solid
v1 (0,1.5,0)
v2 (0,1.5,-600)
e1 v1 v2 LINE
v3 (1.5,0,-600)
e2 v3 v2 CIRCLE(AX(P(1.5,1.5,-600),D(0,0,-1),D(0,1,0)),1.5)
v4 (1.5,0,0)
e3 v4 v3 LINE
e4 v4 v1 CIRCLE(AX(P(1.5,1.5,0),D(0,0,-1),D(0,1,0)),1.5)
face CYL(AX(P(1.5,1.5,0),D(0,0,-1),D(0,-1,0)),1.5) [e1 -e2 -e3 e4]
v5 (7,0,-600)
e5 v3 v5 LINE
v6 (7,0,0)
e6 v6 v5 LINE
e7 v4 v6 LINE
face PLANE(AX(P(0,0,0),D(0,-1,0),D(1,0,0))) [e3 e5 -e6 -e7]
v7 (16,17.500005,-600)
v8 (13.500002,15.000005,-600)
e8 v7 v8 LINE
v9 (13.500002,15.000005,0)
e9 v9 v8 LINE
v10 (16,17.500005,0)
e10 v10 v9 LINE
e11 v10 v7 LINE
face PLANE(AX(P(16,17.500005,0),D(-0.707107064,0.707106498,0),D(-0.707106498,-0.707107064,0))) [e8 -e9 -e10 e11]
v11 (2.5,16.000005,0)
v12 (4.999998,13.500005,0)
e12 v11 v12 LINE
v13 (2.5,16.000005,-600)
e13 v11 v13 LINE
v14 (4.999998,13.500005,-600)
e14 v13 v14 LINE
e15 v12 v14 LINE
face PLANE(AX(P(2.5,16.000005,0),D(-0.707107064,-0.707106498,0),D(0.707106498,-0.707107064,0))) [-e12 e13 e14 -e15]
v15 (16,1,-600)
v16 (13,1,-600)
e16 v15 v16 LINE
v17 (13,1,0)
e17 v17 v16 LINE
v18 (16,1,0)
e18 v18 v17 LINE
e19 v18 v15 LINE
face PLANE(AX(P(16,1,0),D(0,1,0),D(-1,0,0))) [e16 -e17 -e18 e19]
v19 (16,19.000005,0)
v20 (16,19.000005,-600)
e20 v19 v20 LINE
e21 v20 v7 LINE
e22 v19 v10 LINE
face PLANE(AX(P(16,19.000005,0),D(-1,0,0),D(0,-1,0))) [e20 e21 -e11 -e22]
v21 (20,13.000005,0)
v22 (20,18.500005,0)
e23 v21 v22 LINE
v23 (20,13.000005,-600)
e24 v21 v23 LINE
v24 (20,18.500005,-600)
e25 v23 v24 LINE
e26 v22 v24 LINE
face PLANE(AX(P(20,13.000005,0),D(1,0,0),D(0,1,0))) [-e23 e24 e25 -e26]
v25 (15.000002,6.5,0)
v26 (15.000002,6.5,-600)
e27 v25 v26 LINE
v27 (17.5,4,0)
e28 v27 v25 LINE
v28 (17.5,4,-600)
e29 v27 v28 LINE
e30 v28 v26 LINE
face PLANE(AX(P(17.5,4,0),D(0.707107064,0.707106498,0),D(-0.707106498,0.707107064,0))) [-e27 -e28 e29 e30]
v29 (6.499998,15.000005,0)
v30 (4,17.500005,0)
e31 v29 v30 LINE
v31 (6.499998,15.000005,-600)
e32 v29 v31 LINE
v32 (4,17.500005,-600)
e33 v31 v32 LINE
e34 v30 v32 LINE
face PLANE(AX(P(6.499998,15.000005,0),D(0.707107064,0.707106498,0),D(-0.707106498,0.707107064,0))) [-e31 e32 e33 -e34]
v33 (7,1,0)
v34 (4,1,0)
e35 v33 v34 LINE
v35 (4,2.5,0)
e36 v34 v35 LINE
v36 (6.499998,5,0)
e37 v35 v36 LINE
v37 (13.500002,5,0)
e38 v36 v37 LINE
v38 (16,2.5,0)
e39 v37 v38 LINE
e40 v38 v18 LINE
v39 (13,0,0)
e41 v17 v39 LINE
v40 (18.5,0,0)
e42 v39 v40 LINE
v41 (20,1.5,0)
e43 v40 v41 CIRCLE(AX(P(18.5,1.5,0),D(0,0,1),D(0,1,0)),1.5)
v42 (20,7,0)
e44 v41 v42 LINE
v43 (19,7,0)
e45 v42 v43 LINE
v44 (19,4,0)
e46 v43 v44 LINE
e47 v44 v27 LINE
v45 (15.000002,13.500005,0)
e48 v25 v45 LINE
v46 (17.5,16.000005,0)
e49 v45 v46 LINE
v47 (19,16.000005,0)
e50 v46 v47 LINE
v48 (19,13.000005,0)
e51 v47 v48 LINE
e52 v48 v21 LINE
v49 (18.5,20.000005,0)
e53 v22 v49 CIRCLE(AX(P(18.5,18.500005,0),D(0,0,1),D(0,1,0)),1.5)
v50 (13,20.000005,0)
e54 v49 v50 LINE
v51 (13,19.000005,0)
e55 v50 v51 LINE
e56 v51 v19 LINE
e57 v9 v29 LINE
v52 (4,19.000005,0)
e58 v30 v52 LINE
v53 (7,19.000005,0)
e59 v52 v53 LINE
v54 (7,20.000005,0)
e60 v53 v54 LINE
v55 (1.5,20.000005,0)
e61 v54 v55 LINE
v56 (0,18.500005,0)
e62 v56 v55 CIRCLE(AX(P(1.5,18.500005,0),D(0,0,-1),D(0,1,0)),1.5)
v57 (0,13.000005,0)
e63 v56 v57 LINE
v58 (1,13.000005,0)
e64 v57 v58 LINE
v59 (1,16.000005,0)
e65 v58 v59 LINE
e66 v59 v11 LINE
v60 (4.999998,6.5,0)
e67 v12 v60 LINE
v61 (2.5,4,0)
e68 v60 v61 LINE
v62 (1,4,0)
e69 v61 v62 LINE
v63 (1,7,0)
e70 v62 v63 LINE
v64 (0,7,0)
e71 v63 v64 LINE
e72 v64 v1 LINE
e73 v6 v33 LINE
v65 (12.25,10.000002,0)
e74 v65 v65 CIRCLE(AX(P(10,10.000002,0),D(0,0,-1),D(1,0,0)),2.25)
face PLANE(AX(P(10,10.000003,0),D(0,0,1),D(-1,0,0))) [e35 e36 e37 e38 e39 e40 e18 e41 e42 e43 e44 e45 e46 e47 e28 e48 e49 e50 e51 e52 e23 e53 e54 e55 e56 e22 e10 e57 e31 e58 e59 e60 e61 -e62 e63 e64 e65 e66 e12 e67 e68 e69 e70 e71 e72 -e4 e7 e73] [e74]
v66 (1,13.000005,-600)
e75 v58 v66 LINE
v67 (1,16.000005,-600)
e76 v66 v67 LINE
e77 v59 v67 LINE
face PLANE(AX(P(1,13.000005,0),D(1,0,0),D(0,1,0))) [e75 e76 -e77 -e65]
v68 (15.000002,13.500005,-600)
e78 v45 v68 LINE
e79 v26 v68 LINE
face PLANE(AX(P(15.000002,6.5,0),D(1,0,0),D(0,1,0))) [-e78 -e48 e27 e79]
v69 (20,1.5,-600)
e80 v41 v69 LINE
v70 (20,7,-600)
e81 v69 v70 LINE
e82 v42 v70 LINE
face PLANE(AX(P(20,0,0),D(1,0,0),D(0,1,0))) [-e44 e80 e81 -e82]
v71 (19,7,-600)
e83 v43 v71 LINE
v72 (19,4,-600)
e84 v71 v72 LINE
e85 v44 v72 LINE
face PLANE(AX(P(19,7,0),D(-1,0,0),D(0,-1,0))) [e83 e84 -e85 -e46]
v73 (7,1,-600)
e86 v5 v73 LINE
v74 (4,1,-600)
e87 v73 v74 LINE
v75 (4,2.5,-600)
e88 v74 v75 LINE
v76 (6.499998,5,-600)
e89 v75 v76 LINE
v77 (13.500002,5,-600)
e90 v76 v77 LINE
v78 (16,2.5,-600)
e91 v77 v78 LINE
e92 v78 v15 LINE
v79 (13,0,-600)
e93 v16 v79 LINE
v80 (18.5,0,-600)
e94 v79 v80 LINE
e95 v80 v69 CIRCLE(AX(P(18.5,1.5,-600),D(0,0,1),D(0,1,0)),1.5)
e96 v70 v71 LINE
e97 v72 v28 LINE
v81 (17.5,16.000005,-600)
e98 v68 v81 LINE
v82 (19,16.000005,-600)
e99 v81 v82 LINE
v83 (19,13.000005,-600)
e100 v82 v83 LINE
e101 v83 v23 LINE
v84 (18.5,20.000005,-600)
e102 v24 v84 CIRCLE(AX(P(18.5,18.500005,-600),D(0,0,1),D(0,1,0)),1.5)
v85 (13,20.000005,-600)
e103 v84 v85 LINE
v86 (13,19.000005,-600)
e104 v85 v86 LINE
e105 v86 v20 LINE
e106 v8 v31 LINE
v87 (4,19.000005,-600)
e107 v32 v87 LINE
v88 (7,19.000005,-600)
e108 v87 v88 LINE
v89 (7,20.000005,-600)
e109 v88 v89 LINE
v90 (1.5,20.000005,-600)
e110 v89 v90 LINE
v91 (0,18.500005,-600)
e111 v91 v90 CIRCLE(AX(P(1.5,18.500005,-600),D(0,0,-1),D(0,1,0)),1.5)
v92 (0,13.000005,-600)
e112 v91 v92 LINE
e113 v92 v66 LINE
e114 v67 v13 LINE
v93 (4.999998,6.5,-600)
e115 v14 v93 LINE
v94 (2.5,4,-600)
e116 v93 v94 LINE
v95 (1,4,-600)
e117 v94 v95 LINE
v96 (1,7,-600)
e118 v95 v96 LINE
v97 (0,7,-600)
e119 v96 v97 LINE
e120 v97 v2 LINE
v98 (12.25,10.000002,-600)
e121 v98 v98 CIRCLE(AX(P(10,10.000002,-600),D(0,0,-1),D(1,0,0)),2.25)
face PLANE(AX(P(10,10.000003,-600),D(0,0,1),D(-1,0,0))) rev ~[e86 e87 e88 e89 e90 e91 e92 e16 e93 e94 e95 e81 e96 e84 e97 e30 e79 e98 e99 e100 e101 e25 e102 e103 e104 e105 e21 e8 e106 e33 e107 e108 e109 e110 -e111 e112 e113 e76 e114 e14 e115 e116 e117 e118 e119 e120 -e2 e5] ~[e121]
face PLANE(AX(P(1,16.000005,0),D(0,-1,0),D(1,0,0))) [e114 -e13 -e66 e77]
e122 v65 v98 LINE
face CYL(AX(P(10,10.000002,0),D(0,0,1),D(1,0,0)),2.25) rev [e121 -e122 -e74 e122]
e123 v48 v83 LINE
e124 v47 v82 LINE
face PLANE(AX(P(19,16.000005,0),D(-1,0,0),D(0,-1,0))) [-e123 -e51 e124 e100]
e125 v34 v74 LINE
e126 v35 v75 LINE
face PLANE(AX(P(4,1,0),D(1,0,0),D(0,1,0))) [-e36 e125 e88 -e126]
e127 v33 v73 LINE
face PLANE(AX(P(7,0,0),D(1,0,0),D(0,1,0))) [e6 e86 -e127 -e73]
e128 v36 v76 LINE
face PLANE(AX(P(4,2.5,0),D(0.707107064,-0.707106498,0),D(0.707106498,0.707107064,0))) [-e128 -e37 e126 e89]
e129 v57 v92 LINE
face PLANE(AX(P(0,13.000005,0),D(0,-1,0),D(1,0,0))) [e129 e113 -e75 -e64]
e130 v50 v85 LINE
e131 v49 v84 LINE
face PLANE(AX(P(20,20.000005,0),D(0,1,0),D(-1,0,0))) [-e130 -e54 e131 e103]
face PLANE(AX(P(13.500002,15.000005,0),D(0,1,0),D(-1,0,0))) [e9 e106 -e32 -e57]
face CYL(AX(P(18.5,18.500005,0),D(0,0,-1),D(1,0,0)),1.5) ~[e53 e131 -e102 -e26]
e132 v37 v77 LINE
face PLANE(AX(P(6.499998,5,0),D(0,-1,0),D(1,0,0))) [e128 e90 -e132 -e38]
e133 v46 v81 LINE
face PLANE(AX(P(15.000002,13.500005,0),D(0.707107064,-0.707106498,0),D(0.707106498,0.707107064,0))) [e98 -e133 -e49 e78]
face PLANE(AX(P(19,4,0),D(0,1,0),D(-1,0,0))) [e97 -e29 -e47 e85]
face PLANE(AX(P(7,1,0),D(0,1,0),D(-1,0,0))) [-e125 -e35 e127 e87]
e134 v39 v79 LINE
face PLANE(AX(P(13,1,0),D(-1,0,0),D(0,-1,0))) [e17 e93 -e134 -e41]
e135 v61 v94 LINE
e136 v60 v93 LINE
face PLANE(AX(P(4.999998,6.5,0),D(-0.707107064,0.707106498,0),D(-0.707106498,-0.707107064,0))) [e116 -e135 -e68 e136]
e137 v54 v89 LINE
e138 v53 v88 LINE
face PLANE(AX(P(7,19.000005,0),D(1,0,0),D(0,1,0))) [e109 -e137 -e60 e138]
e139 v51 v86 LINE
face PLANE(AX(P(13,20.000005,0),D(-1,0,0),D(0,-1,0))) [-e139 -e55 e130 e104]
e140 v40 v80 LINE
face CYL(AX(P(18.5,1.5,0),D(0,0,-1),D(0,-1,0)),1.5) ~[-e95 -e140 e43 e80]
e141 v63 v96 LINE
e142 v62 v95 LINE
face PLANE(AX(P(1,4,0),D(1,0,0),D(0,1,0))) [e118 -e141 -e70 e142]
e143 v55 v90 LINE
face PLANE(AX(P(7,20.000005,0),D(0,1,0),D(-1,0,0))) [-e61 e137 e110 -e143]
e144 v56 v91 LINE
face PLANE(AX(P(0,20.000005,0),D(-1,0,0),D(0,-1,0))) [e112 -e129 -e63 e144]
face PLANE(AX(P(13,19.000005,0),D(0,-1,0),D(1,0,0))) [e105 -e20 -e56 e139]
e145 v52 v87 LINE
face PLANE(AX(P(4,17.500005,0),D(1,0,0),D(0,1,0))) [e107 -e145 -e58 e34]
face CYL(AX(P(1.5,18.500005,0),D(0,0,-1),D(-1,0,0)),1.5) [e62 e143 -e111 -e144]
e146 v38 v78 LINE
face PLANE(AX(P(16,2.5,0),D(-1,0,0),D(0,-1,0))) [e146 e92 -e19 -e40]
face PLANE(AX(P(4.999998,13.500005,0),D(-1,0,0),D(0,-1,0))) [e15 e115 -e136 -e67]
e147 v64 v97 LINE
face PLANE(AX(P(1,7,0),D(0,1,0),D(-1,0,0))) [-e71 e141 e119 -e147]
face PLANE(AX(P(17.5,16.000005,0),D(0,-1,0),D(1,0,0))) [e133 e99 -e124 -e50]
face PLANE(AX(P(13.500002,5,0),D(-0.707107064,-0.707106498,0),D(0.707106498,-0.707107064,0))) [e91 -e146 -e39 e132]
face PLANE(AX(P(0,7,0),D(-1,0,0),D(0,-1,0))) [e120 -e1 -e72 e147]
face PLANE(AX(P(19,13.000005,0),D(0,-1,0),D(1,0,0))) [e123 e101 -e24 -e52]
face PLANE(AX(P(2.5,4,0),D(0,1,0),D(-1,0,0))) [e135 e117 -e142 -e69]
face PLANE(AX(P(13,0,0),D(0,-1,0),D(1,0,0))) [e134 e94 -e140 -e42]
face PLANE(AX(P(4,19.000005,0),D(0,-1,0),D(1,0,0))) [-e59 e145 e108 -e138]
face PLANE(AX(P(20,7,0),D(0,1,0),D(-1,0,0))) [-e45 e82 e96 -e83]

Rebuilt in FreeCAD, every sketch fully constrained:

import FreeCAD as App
import Part
import Sketcher
from FreeCAD import Vector
Q = App.Units.Quantity


def edges_at(feature, points):
    """Names of the edges that pass closest to the given points."""
    edges = feature.Shape.Edges
    near = lambda p: min(range(len(edges)), key=lambda i: edges[i].distToShape(Part.Vertex(*p))[0])
    return sorted({f"Edge{near(p) + 1}" for p in points})


def add_polygon(sketch, points):
    """Adds a closed chain of lines whose ends are joined by coincident constraints."""
    first, n = sketch.GeometryCount, len(points)
    for a, b in zip(points, points[1:] + points[:1]):
        sketch.addGeometry(Part.LineSegment(App.Vector(*a, 0), App.Vector(*b, 0)), False)
    for i in range(n):
        sketch.addConstraint(Sketcher.Constraint("Coincident", first + i, 2, first + (i + 1) % n, 1))

doc = App.newDocument("Part")
params = doc.addObject("Spreadsheet::Sheet", "Params")
for row, (alias, value) in enumerate([
    ("sketch1_diameter", "4.5 mm"),
    ("sketch1_width", "7 mm"),
    ("sketch1_width2", "1 mm"),
    ("sketch1_width3", "3 mm"),
    ("sketch1_width4", "1.5 mm"),
    ("pad1_length", "600 mm"),
    ("fillet_radius", "1.5 mm"),
], start=1):
    params.set(f"A{row}", alias)
    params.set(f"B{row}", "=" + value)
    params.setAlias(f"B{row}", alias)

body = doc.addObject("PartDesign::Body", "Body")

# Sketch on XY plane
sketch1 = body.newObject("Sketcher::SketchObject", "Sketch")
sketch1.AttachmentSupport = (doc.getObject("XY_Plane"), [""])
sketch1.MapMode = "FlatFace"
add_polygon(sketch1, [(7, 1), (7, 0), (0, 0), (0, 7), (1, 7), (1, 4), (2.5, 4), (4.999998, 6.5), (4.999998, 13.500005), (2.5, 16.000005), (1, 16.000005), (1, 13.000005), (0, 13.000005), (0, 20.000005), (7, 20.000005), (7, 19.000005), (4, 19.000005), (4, 17.500005), (6.499998, 15.000005), (13.500002, 15.000005), (16, 17.500005), (16, 19.000005), (13, 19.000005), (13, 20.000005), (20, 20.000005), (20, 13.000005), (19, 13.000005), (19, 16.000005), (17.5, 16.000005), (15.000002, 13.500005), (15.000002, 6.5), (17.5, 4), (19, 4), (19, 7), (20, 7), (20, 0), (13, 0), (13, 1), (16, 1), (16, 2.5), (13.500002, 5), (6.499998, 5), (4, 2.5), (4, 1)])  # lines 0-43
sketch1.addGeometry(Part.Circle(Vector(10, 10.000002, 0), Vector(0, 0, 1), 2.25), False)  # 44
sketch1.addConstraint([
    Sketcher.Constraint("Vertical", 0),
    Sketcher.Constraint("Horizontal", 1),
    Sketcher.Constraint("Vertical", 2),
    Sketcher.Constraint("Horizontal", 3),
    Sketcher.Constraint("Vertical", 4),
    Sketcher.Constraint("Horizontal", 5),
    Sketcher.Constraint("Vertical", 7),
    Sketcher.Constraint("Horizontal", 9),
    Sketcher.Constraint("Vertical", 10),
    Sketcher.Constraint("Horizontal", 11),
    Sketcher.Constraint("Vertical", 12),
    Sketcher.Constraint("Horizontal", 13),
    Sketcher.Constraint("Vertical", 14),
    Sketcher.Constraint("Horizontal", 15),
    Sketcher.Constraint("Vertical", 16),
    Sketcher.Constraint("Horizontal", 18),
    Sketcher.Constraint("Vertical", 20),
    Sketcher.Constraint("Horizontal", 21),
    Sketcher.Constraint("Vertical", 22),
    Sketcher.Constraint("Horizontal", 23),
    Sketcher.Constraint("Vertical", 24),
    Sketcher.Constraint("Horizontal", 25),
    Sketcher.Constraint("Vertical", 26),
    Sketcher.Constraint("Horizontal", 27),
    Sketcher.Constraint("Vertical", 29),
    Sketcher.Constraint("Horizontal", 31),
    Sketcher.Constraint("Vertical", 32),
    Sketcher.Constraint("Horizontal", 33),
    Sketcher.Constraint("Vertical", 34),
    Sketcher.Constraint("Horizontal", 35),
    Sketcher.Constraint("Vertical", 36),
    Sketcher.Constraint("Horizontal", 37),
    Sketcher.Constraint("Vertical", 38),
    Sketcher.Constraint("Horizontal", 40),
    Sketcher.Constraint("Vertical", 42),
    Sketcher.Constraint("Horizontal", 43),
    Sketcher.Constraint("Coincident", 1, 2, -1, 1),
    Sketcher.Constraint("PointOnObject", 11, 2, -2),
    Sketcher.Constraint("PointOnObject", 34, 2, -1),
    Sketcher.Constraint("Perpendicular", 6, 8),
    Sketcher.Constraint("Parallel", 8, 17),
    Sketcher.Constraint("Perpendicular", 17, 19),
    Sketcher.Constraint("Parallel", 19, 28),
    Sketcher.Constraint("Perpendicular", 28, 30),
    Sketcher.Constraint("Parallel", 30, 39),
    Sketcher.Constraint("Perpendicular", 39, 41),
    Sketcher.Constraint("Horizontal", 16, 2, 19, 2),
    Sketcher.Constraint("Horizontal", 15, 2, 20, 2),
    Sketcher.Constraint("Horizontal", 13, 2, 22, 2),
    Sketcher.Constraint("Horizontal", 11, 2, 24, 2),
    Sketcher.Constraint("Horizontal", 9, 2, 26, 2),
    Sketcher.Constraint("Horizontal", 7, 2, 28, 2),
    Sketcher.Constraint("Horizontal", 6, 2, 29, 2),
    Sketcher.Constraint("Horizontal", 5, 2, 30, 2),
    Sketcher.Constraint("Horizontal", 3, 2, 32, 2),
    Sketcher.Constraint("Horizontal", 38, 2, 41, 2),
    Sketcher.Constraint("Horizontal", 37, 2, 42, 2),
    Sketcher.Constraint("Vertical", 5, 2, 8, 2),
    Sketcher.Constraint("Vertical", 4, 2, 9, 2),
    Sketcher.Constraint("Vertical", 0, 2, 13, 2),
    Sketcher.Constraint("Vertical", 27, 2, 30, 2),
    Sketcher.Constraint("Vertical", 26, 2, 31, 2),
    Sketcher.Constraint("Vertical", 24, 2, 33, 2),
    Sketcher.Constraint("Vertical", 22, 2, 35, 2),
    Sketcher.Constraint("Vertical", 20, 2, 37, 2),
    Sketcher.Constraint("Vertical", 18, 2, 39, 2),
    Sketcher.Constraint("Vertical", 17, 2, 40, 2),
    Sketcher.Constraint("Equal", 15, 21),
    Sketcher.Constraint("Equal", 13, 23),
    Sketcher.Constraint("Equal", 11, 25),
    Sketcher.Constraint("Equal", 9, 27),
    Sketcher.Constraint("Equal", 33, 0),
    Sketcher.Constraint("Equal", 35, 2),
    Sketcher.Constraint("Equal", 43, 4),
    Sketcher.Constraint("Equal", 40, 7),
    Sketcher.Constraint("Equal", 4, 10),
    Sketcher.Constraint("Equal", 2, 12),
    Sketcher.Constraint("Equal", 0, 14),
    Sketcher.Constraint("Equal", 31, 16),
    Sketcher.Constraint("Equal", 20, 38),
    Sketcher.Constraint("Equal", 8, 17),
    Sketcher.Constraint("Diameter", 44, Q("4.5 mm")),
    Sketcher.Constraint("DistanceX", 1, 2, 1, 1, Q("7 mm")),
    Sketcher.Constraint("DistanceX", 3, 1, 3, 2, Q("1 mm")),
    Sketcher.Constraint("DistanceX", 15, 2, 15, 1, Q("3 mm")),
    Sketcher.Constraint("DistanceX", 5, 1, 5, 2, Q("1.5 mm")),
    Sketcher.Constraint("DistanceX", -1, 1, 44, 3, Q("10 mm")),
    Sketcher.Constraint("DistanceX", -1, 1, 19, 2, Q("16 mm")),
    Sketcher.Constraint("DistanceY", -1, 1, 39, 2, Q("5 mm")),
    Sketcher.Constraint("DistanceY", -1, 1, 44, 3, Q("10.000002 mm")),
])
sketch1.setExpression("Constraints[125]", "Params.sketch1_diameter")
sketch1.setExpression("Constraints[126]", "Params.sketch1_width")
sketch1.setExpression("Constraints[127]", "Params.sketch1_width2")
sketch1.setExpression("Constraints[128]", "Params.sketch1_width3")
sketch1.setExpression("Constraints[129]", "Params.sketch1_width4")
pad1 = body.newObject("PartDesign::Pad", "Pad")
pad1.Profile = sketch1
pad1.setExpression("Length", "Params.pad1_length")
pad1.Reversed = True
doc.recompute()

fillet = body.newObject("PartDesign::Fillet", "Fillet")
fillet.Base = (pad1, edges_at(pad1, [
    (20, 20, -300),
    (20, 0, -300),
    (0, 20, -300),
    (0, 0, -300),
]))
fillet.setExpression("Radius", "Params.fillet_radius")

doc.recompute()
